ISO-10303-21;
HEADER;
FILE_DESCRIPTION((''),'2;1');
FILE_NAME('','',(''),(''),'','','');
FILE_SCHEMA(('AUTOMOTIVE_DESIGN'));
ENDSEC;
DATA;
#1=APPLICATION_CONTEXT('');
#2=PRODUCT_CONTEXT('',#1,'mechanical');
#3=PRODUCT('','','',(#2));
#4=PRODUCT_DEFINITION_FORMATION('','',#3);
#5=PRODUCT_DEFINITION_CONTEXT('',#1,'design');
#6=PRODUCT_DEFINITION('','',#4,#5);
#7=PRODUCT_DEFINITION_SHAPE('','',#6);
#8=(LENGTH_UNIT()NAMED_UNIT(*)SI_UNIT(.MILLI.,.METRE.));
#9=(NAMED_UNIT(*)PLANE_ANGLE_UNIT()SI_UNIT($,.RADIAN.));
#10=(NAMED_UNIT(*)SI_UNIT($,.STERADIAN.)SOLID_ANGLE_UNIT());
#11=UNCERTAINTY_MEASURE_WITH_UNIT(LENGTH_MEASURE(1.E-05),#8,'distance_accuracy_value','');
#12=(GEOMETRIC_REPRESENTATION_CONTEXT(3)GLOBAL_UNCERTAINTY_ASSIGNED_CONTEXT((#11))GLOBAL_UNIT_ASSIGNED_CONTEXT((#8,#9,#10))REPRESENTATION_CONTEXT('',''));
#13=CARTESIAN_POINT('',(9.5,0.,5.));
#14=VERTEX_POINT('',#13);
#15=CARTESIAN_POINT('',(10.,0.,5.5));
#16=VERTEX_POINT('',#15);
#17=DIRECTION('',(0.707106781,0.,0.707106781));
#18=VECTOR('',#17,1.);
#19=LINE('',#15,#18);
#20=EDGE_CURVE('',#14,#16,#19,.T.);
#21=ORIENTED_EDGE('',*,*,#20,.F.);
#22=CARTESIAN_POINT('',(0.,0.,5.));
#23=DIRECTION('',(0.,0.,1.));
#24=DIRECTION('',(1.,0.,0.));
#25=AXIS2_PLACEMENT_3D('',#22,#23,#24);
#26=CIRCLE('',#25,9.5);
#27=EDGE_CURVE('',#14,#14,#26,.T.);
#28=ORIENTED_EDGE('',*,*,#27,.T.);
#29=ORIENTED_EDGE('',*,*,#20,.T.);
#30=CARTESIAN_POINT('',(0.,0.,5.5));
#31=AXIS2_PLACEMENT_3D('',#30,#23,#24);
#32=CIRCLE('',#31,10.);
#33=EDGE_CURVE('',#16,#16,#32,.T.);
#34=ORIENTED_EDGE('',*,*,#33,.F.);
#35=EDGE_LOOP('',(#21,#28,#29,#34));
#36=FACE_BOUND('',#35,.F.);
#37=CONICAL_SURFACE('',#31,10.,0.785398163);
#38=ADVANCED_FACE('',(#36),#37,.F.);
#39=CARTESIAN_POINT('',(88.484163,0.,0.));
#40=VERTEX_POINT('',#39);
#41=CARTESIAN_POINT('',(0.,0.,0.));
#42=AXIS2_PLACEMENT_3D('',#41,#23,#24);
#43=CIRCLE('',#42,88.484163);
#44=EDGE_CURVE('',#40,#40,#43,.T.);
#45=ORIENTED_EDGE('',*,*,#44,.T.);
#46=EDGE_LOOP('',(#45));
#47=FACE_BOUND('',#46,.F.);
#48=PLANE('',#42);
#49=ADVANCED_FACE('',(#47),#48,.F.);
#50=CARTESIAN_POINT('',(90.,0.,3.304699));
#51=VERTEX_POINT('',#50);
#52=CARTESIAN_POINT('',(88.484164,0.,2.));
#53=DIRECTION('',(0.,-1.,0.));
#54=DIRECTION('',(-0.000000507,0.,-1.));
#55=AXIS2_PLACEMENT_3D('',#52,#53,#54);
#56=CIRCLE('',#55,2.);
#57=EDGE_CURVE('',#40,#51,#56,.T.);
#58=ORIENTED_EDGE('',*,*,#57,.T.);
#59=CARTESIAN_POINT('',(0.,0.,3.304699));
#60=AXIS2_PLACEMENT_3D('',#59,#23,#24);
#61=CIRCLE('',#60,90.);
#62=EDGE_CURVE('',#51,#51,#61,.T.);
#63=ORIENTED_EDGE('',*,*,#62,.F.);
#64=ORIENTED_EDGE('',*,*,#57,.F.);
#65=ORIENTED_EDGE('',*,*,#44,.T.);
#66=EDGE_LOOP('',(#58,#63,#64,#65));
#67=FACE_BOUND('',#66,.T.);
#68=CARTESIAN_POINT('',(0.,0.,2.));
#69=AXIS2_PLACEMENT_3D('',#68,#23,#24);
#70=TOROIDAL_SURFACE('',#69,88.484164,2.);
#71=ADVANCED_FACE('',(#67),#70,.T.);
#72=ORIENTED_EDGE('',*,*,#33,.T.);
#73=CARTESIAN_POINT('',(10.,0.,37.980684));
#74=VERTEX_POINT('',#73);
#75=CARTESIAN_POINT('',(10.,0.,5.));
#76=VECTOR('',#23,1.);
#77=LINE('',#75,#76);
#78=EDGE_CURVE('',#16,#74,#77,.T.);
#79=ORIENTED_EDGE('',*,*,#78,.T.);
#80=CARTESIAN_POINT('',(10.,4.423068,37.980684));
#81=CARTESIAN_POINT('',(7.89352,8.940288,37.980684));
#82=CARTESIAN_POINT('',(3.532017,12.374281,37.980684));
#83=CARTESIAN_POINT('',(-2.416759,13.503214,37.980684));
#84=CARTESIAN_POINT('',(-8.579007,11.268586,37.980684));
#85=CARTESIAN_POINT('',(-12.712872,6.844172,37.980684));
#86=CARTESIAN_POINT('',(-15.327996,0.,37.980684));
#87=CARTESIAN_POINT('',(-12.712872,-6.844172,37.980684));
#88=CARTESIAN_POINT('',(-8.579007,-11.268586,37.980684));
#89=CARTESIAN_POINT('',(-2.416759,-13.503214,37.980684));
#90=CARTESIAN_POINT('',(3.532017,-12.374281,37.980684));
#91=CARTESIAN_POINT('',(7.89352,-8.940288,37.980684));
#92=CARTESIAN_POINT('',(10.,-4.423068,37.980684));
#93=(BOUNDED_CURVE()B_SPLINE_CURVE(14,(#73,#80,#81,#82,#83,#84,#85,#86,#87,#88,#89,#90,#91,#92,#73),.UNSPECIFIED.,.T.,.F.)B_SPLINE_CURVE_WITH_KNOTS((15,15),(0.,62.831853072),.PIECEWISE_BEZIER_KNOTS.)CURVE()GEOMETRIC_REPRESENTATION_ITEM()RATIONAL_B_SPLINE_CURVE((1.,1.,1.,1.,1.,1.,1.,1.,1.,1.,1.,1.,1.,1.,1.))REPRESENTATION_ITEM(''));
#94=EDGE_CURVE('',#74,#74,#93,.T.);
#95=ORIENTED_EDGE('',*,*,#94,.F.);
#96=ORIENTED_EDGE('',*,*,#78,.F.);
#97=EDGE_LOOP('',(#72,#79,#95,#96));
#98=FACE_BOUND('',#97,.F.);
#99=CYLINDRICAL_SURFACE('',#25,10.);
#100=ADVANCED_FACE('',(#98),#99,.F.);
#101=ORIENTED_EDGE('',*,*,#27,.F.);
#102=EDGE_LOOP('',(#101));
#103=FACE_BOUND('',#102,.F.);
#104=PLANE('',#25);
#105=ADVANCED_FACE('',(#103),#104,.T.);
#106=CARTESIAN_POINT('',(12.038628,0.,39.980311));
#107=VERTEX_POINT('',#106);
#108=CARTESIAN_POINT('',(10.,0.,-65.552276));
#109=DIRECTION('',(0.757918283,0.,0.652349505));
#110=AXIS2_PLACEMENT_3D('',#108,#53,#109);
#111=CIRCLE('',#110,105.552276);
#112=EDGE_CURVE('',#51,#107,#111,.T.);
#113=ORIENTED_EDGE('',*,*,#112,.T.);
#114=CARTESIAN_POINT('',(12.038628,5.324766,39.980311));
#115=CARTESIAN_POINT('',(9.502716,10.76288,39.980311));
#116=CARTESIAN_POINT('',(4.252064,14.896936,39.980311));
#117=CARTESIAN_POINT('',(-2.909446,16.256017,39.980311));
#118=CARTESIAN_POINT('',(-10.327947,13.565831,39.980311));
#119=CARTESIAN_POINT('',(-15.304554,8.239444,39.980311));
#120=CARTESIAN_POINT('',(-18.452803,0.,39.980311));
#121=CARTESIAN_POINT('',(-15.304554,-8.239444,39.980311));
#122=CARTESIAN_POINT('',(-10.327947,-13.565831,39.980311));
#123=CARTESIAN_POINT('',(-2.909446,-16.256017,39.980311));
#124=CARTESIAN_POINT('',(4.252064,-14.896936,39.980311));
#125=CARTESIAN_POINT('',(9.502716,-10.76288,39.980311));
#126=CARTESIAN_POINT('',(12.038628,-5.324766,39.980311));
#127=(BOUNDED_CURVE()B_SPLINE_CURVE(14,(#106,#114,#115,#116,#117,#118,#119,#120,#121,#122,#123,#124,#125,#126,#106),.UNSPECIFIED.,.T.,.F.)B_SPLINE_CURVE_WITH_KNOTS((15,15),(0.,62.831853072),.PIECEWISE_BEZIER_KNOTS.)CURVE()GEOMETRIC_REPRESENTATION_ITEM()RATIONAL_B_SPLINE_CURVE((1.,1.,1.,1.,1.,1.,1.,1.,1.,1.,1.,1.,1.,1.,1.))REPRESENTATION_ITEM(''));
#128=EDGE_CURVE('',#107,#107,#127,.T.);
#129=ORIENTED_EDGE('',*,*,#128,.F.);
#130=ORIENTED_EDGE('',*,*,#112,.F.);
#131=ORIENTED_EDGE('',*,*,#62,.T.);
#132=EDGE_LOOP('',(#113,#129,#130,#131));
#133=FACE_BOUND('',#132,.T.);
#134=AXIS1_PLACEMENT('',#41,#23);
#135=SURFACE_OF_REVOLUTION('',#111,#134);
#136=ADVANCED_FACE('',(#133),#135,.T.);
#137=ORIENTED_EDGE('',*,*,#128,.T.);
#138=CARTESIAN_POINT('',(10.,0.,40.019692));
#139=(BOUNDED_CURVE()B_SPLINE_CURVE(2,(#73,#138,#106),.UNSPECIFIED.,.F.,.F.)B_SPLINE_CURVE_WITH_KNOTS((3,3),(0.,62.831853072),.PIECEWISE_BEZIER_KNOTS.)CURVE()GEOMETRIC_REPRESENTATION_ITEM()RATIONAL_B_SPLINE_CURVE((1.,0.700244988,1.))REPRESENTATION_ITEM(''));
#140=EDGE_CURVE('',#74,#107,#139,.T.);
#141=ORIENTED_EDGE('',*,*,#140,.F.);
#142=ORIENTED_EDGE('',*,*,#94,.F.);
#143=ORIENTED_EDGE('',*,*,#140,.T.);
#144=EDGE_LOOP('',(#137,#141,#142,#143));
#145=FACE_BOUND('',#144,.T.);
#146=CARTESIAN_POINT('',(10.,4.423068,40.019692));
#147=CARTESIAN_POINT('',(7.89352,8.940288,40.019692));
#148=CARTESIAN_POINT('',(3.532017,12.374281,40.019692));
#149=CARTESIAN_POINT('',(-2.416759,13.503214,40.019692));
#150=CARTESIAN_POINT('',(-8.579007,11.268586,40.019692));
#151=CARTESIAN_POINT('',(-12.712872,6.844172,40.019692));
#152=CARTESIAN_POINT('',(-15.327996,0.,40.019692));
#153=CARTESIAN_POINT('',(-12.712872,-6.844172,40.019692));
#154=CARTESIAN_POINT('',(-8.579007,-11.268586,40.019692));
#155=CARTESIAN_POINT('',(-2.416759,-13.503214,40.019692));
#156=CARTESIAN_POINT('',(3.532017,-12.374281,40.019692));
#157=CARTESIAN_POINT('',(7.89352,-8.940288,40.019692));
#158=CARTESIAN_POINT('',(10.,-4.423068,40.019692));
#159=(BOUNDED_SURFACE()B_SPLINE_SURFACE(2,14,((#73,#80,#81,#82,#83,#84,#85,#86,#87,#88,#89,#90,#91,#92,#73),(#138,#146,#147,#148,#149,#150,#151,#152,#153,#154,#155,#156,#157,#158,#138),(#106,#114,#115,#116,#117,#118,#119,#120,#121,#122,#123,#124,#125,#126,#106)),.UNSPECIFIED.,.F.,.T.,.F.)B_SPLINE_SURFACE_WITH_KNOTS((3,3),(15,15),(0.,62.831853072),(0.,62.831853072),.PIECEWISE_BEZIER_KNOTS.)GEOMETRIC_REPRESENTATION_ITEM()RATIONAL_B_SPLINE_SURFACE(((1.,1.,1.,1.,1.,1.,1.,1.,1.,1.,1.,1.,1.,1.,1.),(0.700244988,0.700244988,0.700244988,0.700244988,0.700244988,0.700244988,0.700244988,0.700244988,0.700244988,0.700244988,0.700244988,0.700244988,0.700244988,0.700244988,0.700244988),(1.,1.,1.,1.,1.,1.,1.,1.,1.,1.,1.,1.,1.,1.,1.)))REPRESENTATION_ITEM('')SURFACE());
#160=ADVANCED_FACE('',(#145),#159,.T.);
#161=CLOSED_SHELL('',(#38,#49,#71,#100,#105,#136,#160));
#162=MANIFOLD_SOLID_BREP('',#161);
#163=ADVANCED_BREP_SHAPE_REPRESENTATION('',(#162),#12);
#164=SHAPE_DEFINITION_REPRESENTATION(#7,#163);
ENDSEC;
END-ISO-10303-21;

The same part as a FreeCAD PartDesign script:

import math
import FreeCAD as App
import Part
import Sketcher
from FreeCAD import Vector


def edges_at(feature, points):
    """Names of the edges that pass closest to the given points."""
    edges = feature.Shape.Edges
    near = lambda p: min(range(len(edges)), key=lambda i: edges[i].distToShape(Part.Vertex(*p))[0])
    return sorted({f"Edge{near(p) + 1}" for p in points})

doc = App.newDocument("Part")
params = doc.addObject("Spreadsheet::Sheet", "Params")
for row, (alias, value) in enumerate([
    ("sketch1_radius", "2 mm"),
    ("sketch1_width", "10 mm"),
    ("sketch1_height", "5 mm"),
    ("sketch1_height2", "35 mm"),
    ("revolution_angle", "360 deg"),
    ("chamfer_size", "0.5 mm"),
    ("fillet_radius", "2 mm"),
], start=1):
    params.set(f"A{row}", alias)
    params.set(f"B{row}", "=" + value)
    params.setAlias(f"B{row}", alias)

body = doc.addObject("PartDesign::Body", "Body")

# Sketch on XZ plane
sketch1 = body.newObject("Sketcher::SketchObject", "Sketch")
sketch1.AttachmentSupport = (doc.getObject("XZ_Plane"), [""])
sketch1.MapMode = "FlatFace"
sketch1.addGeometry(Part.LineSegment(Vector(0, 5, 0), Vector(0, 0, 0)), False)
sketch1.addGeometry(Part.LineSegment(Vector(0, 0, 0), Vector(88.5, 0, 0)), False)
sketch1.addGeometry(Part.ArcOfCircle(Part.Circle(Vector(88.5, 2, 0), Vector(0, 0, 1), 2), math.radians(-90), math.radians(41)), False)
sketch1.addGeometry(Part.ArcOfCircle(Part.Circle(Vector(10, -65.6, 0), Vector(0, 0, 1), 105.6), math.radians(41), math.radians(90)), False)
sketch1.addGeometry(Part.LineSegment(Vector(10, 40, 0), Vector(10, 5, 0)), False)
sketch1.addGeometry(Part.LineSegment(Vector(10, 5, 0), Vector(0, 5, 0)), False)
sketch1.addConstraint(Sketcher.Constraint("Coincident", 0, 2, 1, 1))
sketch1.addConstraint(Sketcher.Constraint("Tangent", 1, 2, 2, 1))
sketch1.addConstraint(Sketcher.Constraint("Tangent", 2, 2, 3, 1))
sketch1.addConstraint(Sketcher.Constraint("Coincident", 3, 2, 4, 1))
sketch1.addConstraint(Sketcher.Constraint("Coincident", 4, 2, 5, 1))
sketch1.addConstraint(Sketcher.Constraint("Coincident", 5, 2, 0, 1))
sketch1.addConstraint(Sketcher.Constraint("Vertical", 0))
sketch1.addConstraint(Sketcher.Constraint("Horizontal", 1))
sketch1.addConstraint(Sketcher.Constraint("Vertical", 4))
sketch1.addConstraint(Sketcher.Constraint("Horizontal", 5))
sketch1.addConstraint(Sketcher.Constraint("Coincident", 0, 2, -1, 1))
sketch1.addConstraint(Sketcher.Constraint("Radius", 2, 2.0))
sketch1.addConstraint(Sketcher.Constraint("DistanceX", 5, 2, 5, 1, 10.0))
sketch1.addConstraint(Sketcher.Constraint("DistanceY", 0, 2, 0, 1, 5.0))
sketch1.addConstraint(Sketcher.Constraint("DistanceY", 4, 2, 4, 1, 35.0))
sketch1.addConstraint(Sketcher.Constraint("DistanceX", -1, 1, 3, 3, 10.0))
sketch1.addConstraint(Sketcher.Constraint("DistanceX", -1, 1, 2, 2, 90.0))
sketch1.setExpression("Constraints[11]", "Params.sketch1_radius")
sketch1.setExpression("Constraints[12]", "Params.sketch1_width")
sketch1.setExpression("Constraints[13]", "Params.sketch1_height")
sketch1.setExpression("Constraints[14]", "Params.sketch1_height2")
revolution = body.newObject("PartDesign::Revolution", "Revolution")
revolution.Profile = sketch1
revolution.ReferenceAxis = (sketch1, ["V_Axis"])
revolution.setExpression("Angle", "Params.revolution_angle")
doc.recompute()

chamfer = body.newObject("PartDesign::Chamfer", "Chamfer")
chamfer.Base = (revolution, edges_at(revolution, [(-10, 0, 5)]))
chamfer.setExpression("Size", "Params.chamfer_size")
doc.recompute()

fillet = body.newObject("PartDesign::Fillet", "Fillet")
fillet.Base = (chamfer, edges_at(chamfer, [(-10, 0, 40)]))
fillet.setExpression("Radius", "Params.fillet_radius")

doc.recompute()
